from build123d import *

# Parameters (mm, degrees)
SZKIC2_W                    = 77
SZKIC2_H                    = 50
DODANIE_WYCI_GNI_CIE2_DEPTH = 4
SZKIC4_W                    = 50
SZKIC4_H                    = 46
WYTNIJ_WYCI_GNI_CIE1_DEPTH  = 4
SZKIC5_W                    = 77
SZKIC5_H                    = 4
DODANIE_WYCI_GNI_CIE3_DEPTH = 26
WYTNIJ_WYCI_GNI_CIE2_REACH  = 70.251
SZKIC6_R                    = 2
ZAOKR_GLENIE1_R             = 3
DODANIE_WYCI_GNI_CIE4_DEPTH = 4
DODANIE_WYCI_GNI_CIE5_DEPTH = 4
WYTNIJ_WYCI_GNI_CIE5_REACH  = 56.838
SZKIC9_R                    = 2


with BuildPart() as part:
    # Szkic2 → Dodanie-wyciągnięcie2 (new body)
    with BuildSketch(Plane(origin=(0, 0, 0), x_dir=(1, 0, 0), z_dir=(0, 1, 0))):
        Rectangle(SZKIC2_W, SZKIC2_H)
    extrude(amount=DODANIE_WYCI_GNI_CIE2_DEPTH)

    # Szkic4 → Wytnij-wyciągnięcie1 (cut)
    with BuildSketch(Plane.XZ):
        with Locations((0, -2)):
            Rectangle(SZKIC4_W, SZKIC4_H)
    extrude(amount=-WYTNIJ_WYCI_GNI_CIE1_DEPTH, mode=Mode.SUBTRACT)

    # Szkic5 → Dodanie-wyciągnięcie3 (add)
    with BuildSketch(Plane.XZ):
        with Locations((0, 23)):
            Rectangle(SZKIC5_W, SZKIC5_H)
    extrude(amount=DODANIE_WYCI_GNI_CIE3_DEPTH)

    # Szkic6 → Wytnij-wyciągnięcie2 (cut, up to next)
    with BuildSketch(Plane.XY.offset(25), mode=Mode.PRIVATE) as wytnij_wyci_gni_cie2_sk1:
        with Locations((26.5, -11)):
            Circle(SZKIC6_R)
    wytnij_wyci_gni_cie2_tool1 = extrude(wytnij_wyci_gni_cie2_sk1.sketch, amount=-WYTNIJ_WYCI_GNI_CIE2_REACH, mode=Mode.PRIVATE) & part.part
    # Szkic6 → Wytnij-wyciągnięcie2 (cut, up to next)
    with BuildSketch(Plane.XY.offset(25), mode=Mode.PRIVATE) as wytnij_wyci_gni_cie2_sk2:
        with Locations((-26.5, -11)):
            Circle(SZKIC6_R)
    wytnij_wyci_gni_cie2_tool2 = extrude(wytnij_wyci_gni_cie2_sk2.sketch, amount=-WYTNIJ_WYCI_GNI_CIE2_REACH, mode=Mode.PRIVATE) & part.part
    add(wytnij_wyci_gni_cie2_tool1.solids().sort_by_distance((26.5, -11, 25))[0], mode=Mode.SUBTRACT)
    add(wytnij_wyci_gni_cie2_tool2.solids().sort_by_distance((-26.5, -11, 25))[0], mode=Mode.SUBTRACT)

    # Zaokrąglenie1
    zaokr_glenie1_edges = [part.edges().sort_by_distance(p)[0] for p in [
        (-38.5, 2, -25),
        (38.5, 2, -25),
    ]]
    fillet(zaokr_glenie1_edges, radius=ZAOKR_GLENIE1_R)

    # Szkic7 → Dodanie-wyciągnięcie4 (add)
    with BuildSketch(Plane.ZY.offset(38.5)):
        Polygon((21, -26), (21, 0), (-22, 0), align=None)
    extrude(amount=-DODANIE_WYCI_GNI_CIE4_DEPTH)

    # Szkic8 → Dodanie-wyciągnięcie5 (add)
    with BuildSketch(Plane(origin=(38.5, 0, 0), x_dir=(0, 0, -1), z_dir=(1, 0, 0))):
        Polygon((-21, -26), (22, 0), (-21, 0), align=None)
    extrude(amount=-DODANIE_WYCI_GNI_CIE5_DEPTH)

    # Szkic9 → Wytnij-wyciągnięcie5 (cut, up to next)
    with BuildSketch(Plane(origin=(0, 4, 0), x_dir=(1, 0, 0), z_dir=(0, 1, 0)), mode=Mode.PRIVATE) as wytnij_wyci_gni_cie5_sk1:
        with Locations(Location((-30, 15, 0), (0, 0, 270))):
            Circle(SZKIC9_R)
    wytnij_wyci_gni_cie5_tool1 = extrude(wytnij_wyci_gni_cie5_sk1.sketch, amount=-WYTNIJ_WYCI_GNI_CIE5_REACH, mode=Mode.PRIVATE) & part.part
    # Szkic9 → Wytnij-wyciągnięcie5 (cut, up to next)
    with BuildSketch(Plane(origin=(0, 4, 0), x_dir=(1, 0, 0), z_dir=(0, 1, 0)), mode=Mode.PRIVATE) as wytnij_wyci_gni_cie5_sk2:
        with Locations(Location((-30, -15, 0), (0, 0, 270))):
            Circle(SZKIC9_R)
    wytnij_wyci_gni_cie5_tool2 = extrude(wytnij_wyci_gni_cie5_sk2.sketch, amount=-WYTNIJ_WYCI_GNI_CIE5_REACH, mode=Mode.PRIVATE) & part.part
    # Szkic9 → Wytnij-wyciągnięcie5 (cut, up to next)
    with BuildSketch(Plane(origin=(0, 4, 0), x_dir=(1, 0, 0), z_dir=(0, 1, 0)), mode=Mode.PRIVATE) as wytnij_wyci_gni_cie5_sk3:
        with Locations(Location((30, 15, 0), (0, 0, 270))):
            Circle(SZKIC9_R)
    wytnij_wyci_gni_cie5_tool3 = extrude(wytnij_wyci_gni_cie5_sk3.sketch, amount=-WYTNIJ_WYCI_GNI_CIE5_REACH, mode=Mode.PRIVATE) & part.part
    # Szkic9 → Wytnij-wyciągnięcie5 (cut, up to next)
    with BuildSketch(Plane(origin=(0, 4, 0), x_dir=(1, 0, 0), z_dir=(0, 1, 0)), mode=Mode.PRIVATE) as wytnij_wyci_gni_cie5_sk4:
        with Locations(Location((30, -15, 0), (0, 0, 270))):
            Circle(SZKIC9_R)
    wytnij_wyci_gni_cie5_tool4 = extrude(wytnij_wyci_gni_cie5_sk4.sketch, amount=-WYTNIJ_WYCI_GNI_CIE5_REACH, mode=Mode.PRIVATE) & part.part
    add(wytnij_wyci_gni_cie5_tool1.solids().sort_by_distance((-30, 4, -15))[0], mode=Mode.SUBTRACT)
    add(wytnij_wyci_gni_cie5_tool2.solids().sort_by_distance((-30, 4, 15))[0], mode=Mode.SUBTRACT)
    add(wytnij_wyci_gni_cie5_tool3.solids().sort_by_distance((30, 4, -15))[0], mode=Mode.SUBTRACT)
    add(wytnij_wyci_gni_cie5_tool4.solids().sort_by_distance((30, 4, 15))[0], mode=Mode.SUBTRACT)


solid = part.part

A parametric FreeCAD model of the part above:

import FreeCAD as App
import Part
import Sketcher
from FreeCAD import Vector
Q = App.Units.Quantity


def edges_at(feature, points):
    """Names of the edges that pass closest to the given points."""
    edges = feature.Shape.Edges
    near = lambda p: min(range(len(edges)), key=lambda i: edges[i].distToShape(Part.Vertex(*p))[0])
    return sorted({f"Edge{near(p) + 1}" for p in points})


def add_polygon(sketch, points):
    """Adds a closed chain of lines whose ends are joined by coincident constraints."""
    first, n = sketch.GeometryCount, len(points)
    for a, b in zip(points, points[1:] + points[:1]):
        sketch.addGeometry(Part.LineSegment(App.Vector(*a, 0), App.Vector(*b, 0)), False)
    for i in range(n):
        sketch.addConstraint(Sketcher.Constraint("Coincident", first + i, 2, first + (i + 1) % n, 1))

doc = App.newDocument("Part")
body = doc.addObject("PartDesign::Body", "Body")

# Sketch on XZ plane
sketch1 = body.newObject("Sketcher::SketchObject", "Sketch")
sketch1.AttachmentSupport = (doc.getObject("XZ_Plane"), [""])
sketch1.MapMode = "FlatFace"
add_polygon(sketch1, [(-38, -25), (-38, 25), (38, 25), (38, -25)])  # lines 0-3
sketch1.addConstraint(Sketcher.Constraint("Vertical", 0))
sketch1.addConstraint(Sketcher.Constraint("Horizontal", 1))
sketch1.addConstraint(Sketcher.Constraint("Vertical", 2))
sketch1.addConstraint(Sketcher.Constraint("Horizontal", 3))
sketch1.addConstraint(Sketcher.Constraint("Symmetric", 0, 2, 2, 2, -1, 1))
sketch1.addConstraint(Sketcher.Constraint("DistanceX", 1, 1, 1, 2, Q("77 mm")))
sketch1.addConstraint(Sketcher.Constraint("DistanceY", 0, 1, 0, 2, Q("50 mm")))
pad1 = body.newObject("PartDesign::Pad", "Pad")
pad1.Profile = sketch1
pad1.Length = 4
pad1.Reversed = True

# Sketch on XZ plane
sketch2 = body.newObject("Sketcher::SketchObject", "Sketch001")
sketch2.AttachmentSupport = (doc.getObject("XZ_Plane"), [""])
sketch2.MapMode = "FlatFace"
add_polygon(sketch2, [(-25, 21), (-25, -25), (25, -25), (25, 21)])  # lines 0-3
sketch2.addConstraint(Sketcher.Constraint("Vertical", 0))
sketch2.addConstraint(Sketcher.Constraint("Horizontal", 1))
sketch2.addConstraint(Sketcher.Constraint("Vertical", 2))
sketch2.addConstraint(Sketcher.Constraint("Horizontal", 3))
sketch2.addConstraint(Sketcher.Constraint("DistanceX", 1, 1, 1, 2, Q("50 mm")))
sketch2.addConstraint(Sketcher.Constraint("DistanceY", 0, 2, 0, 1, Q("46 mm")))
sketch2.addConstraint(Sketcher.Constraint("DistanceX", 0, 2, -1, 1, Q("25 mm")))
sketch2.addConstraint(Sketcher.Constraint("DistanceY", 0, 2, -1, 1, Q("25 mm")))
pocket1 = body.newObject("PartDesign::Pocket", "Pocket")
pocket1.Profile = sketch2
pocket1.Length = 4

# Sketch on XZ plane
sketch3 = body.newObject("Sketcher::SketchObject", "Sketch002")
sketch3.AttachmentSupport = (doc.getObject("XZ_Plane"), [""])
sketch3.MapMode = "FlatFace"
add_polygon(sketch3, [(-38.5, 25), (-38.5, 21), (38.5, 21), (38.5, 25)])  # lines 0-3
sketch3.addConstraint(Sketcher.Constraint("Vertical", 0))
sketch3.addConstraint(Sketcher.Constraint("Horizontal", 1))
sketch3.addConstraint(Sketcher.Constraint("Vertical", 2))
sketch3.addConstraint(Sketcher.Constraint("Horizontal", 3))
sketch3.addConstraint(Sketcher.Constraint("DistanceX", 1, 1, 1, 2, Q("77 mm")))
sketch3.addConstraint(Sketcher.Constraint("DistanceY", 0, 2, 0, 1, Q("4 mm")))
sketch3.addConstraint(Sketcher.Constraint("DistanceY", -1, 1, 0, 2, Q("21 mm")))
sketch3.addConstraint(Sketcher.Constraint("DistanceX", 0, 2, -1, 1, Q("38.5 mm")))
pad2 = body.newObject("PartDesign::Pad", "Pad001")
pad2.Profile = sketch3
pad2.Length = 26

# Sketch on XY plane
sketch4 = body.newObject("Sketcher::SketchObject", "Sketch003")
sketch4.AttachmentSupport = (doc.getObject("XY_Plane"), [""])
sketch4.MapMode = "FlatFace"
sketch4.AttachmentOffset = App.Placement(Vector(0, 0, 25), App.Rotation())
sketch4.addGeometry(Part.Circle(Vector(26.5, -11, 0), Vector(0, 0, 1), 2), False)
sketch4.addConstraint(Sketcher.Constraint("Diameter", 0, Q("4 mm")))
sketch4.addConstraint(Sketcher.Constraint("DistanceY", 0, 3, -1, 1, Q("11 mm")))
sketch4.addConstraint(Sketcher.Constraint("DistanceX", -1, 1, 0, 3, Q("26.5 mm")))
pocket2 = body.newObject("PartDesign::Pocket", "Pocket001")
pocket2.Profile = sketch4
pocket2.Type = "UpToFirst"

# Sketch on XY plane
sketch5 = body.newObject("Sketcher::SketchObject", "Sketch004")
sketch5.AttachmentSupport = (doc.getObject("XY_Plane"), [""])
sketch5.MapMode = "FlatFace"
sketch5.AttachmentOffset = App.Placement(Vector(0, 0, 25), App.Rotation())
sketch5.addGeometry(Part.Circle(Vector(-26.5, -11, 0), Vector(0, 0, 1), 2), False)
sketch5.addConstraint(Sketcher.Constraint("Diameter", 0, Q("4 mm")))
sketch5.addConstraint(Sketcher.Constraint("DistanceY", 0, 3, -1, 1, Q("11 mm")))
sketch5.addConstraint(Sketcher.Constraint("DistanceX", 0, 3, -1, 1, Q("26.5 mm")))
pocket3 = body.newObject("PartDesign::Pocket", "Pocket002")
pocket3.Profile = sketch5
pocket3.Type = "UpToFirst"
doc.recompute()

fillet = body.newObject("PartDesign::Fillet", "Fillet")
fillet.Base = (pocket3, edges_at(pocket3, [(-38.5, 2, -25), (38.5, 2, -25)]))
fillet.Radius = 3

# Sketch on YZ plane
sketch6 = body.newObject("Sketcher::SketchObject", "Sketch005")
sketch6.AttachmentSupport = (doc.getObject("YZ_Plane"), [""])
sketch6.MapMode = "FlatFace"
sketch6.AttachmentOffset = App.Placement(Vector(0, 0, -38.5), App.Rotation())
add_polygon(sketch6, [(-26, 21), (0, 21), (0, -22)])  # lines 0-2
sketch6.addConstraint(Sketcher.Constraint("Horizontal", 0))
sketch6.addConstraint(Sketcher.Constraint("Vertical", 1))
sketch6.addConstraint(Sketcher.Constraint("PointOnObject", 0, 2, -2))
sketch6.addConstraint(Sketcher.Constraint("DistanceX", 0, 1, 0, 2, Q("26 mm")))
sketch6.addConstraint(Sketcher.Constraint("DistanceY", 1, 2, 1, 1, Q("43 mm")))
sketch6.addConstraint(Sketcher.Constraint("DistanceY", -1, 1, 0, 2, Q("21 mm")))
pad3 = body.newObject("PartDesign::Pad", "Pad002")
pad3.Profile = sketch6
pad3.Length = 4

# Sketch on YZ plane
sketch7 = body.newObject("Sketcher::SketchObject", "Sketch006")
sketch7.AttachmentSupport = (doc.getObject("YZ_Plane"), [""])
sketch7.MapMode = "FlatFace"
sketch7.AttachmentOffset = App.Placement(Vector(0, 0, 38.5), App.Rotation())
add_polygon(sketch7, [(-26, 21), (0, -22), (0, 21)])  # lines 0-2
sketch7.addConstraint(Sketcher.Constraint("Vertical", 1))
sketch7.addConstraint(Sketcher.Constraint("Horizontal", 2))
sketch7.addConstraint(Sketcher.Constraint("PointOnObject", 0, 2, -2))
sketch7.addConstraint(Sketcher.Constraint("DistanceX", 2, 2, 2, 1, Q("26 mm")))
sketch7.addConstraint(Sketcher.Constraint("DistanceY", 1, 1, 1, 2, Q("43 mm")))
sketch7.addConstraint(Sketcher.Constraint("DistanceY", 0, 2, -1, 1, Q("22 mm")))
pad4 = body.newObject("PartDesign::Pad", "Pad003")
pad4.Profile = sketch7
pad4.Length = 4
pad4.Reversed = True

# Sketch on XZ plane
sketch8 = body.newObject("Sketcher::SketchObject", "Sketch007")
sketch8.AttachmentSupport = (doc.getObject("XZ_Plane"), [""])
sketch8.MapMode = "FlatFace"
sketch8.AttachmentOffset = App.Placement(Vector(0, 0, -4), App.Rotation())
sketch8.addGeometry(Part.Circle(Vector(-30, -15, 0), Vector(0, 0, 1), 2), False)
sketch8.addConstraint(Sketcher.Constraint("Diameter", 0, Q("4 mm")))
sketch8.addConstraint(Sketcher.Constraint("DistanceX", 0, 3, -1, 1, Q("30 mm")))
sketch8.addConstraint(Sketcher.Constraint("DistanceY", 0, 3, -1, 1, Q("15 mm")))
pocket4 = body.newObject("PartDesign::Pocket", "Pocket003")
pocket4.Profile = sketch8
pocket4.Type = "UpToFirst"
pocket4.Reversed = True

# Sketch on XZ plane
sketch9 = body.newObject("Sketcher::SketchObject", "Sketch008")
sketch9.AttachmentSupport = (doc.getObject("XZ_Plane"), [""])
sketch9.MapMode = "FlatFace"
sketch9.AttachmentOffset = App.Placement(Vector(0, 0, -4), App.Rotation())
sketch9.addGeometry(Part.Circle(Vector(-30, 15, 0), Vector(0, 0, 1), 2), False)
sketch9.addConstraint(Sketcher.Constraint("Diameter", 0, Q("4 mm")))
sketch9.addConstraint(Sketcher.Constraint("DistanceX", 0, 3, -1, 1, Q("30 mm")))
sketch9.addConstraint(Sketcher.Constraint("DistanceY", -1, 1, 0, 3, Q("15 mm")))
pocket5 = body.newObject("PartDesign::Pocket", "Pocket004")
pocket5.Profile = sketch9
pocket5.Type = "UpToFirst"
pocket5.Reversed = True

# Sketch on XZ plane
sketch10 = body.newObject("Sketcher::SketchObject", "Sketch009")
sketch10.AttachmentSupport = (doc.getObject("XZ_Plane"), [""])
sketch10.MapMode = "FlatFace"
sketch10.AttachmentOffset = App.Placement(Vector(0, 0, -4), App.Rotation())
sketch10.addGeometry(Part.Circle(Vector(30, -15, 0), Vector(0, 0, 1), 2), False)
sketch10.addConstraint(Sketcher.Constraint("Diameter", 0, Q("4 mm")))
sketch10.addConstraint(Sketcher.Constraint("DistanceX", -1, 1, 0, 3, Q("30 mm")))
sketch10.addConstraint(Sketcher.Constraint("DistanceY", 0, 3, -1, 1, Q("15 mm")))
pocket6 = body.newObject("PartDesign::Pocket", "Pocket005")
pocket6.Profile = sketch10
pocket6.Type = "UpToFirst"
pocket6.Reversed = True

# Sketch on XZ plane
sketch11 = body.newObject("Sketcher::SketchObject", "Sketch010")
sketch11.AttachmentSupport = (doc.getObject("XZ_Plane"), [""])
sketch11.MapMode = "FlatFace"
sketch11.AttachmentOffset = App.Placement(Vector(0, 0, -4), App.Rotation())
sketch11.addGeometry(Part.Circle(Vector(30, 15, 0), Vector(0, 0, 1), 2), False)
sketch11.addConstraint(Sketcher.Constraint("Diameter", 0, Q("4 mm")))
sketch11.addConstraint(Sketcher.Constraint("DistanceX", -1, 1, 0, 3, Q("30 mm")))
sketch11.addConstraint(Sketcher.Constraint("DistanceY", -1, 1, 0, 3, Q("15 mm")))
pocket7 = body.newObject("PartDesign::Pocket", "Pocket006")
pocket7.Profile = sketch11
pocket7.Type = "UpToFirst"
pocket7.Reversed = True

doc.recompute()
